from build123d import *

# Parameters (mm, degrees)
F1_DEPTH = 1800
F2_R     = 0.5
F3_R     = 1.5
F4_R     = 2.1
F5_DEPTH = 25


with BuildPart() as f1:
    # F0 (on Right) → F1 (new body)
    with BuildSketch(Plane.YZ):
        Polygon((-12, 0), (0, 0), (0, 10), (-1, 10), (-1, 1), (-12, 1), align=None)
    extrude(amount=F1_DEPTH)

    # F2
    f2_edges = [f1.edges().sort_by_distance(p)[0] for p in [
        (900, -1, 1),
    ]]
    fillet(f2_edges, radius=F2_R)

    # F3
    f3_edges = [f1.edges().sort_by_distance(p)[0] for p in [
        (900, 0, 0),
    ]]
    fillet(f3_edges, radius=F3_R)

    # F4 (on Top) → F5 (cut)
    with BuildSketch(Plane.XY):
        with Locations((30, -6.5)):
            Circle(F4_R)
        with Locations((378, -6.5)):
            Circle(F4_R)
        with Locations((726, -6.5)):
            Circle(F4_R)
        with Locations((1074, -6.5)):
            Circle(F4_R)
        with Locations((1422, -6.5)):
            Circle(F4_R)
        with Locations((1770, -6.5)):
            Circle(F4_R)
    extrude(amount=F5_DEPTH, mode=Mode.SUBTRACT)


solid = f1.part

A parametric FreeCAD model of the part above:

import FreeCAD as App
import Part
import Sketcher
from FreeCAD import Vector


def edges_at(feature, points):
    """Names of the edges that pass closest to the given points."""
    edges = feature.Shape.Edges
    near = lambda p: min(range(len(edges)), key=lambda i: edges[i].distToShape(Part.Vertex(*p))[0])
    return sorted({f"Edge{near(p) + 1}" for p in points})

doc = App.newDocument("Part")
body = doc.addObject("PartDesign::Body", "Body")

sketch1 = body.newObject("Sketcher::SketchObject", "Sketch")
sketch1.AttachmentSupport = (doc.getObject("YZ_Plane"), [""])
sketch1.MapMode = "FlatFace"
sketch1.addGeometry([
    Part.LineSegment(Vector(-12, 0, 0), Vector(0, 0, 0)),
    Part.LineSegment(Vector(0, 0, 0), Vector(0, 10, 0)),
    Part.LineSegment(Vector(0, 10, 0), Vector(-1, 10, 0)),
    Part.LineSegment(Vector(-1, 10, 0), Vector(-1, 1, 0)),
    Part.LineSegment(Vector(-1, 1, 0), Vector(-12, 1, 0)),
    Part.LineSegment(Vector(-12, 1, 0), Vector(-12, 0, 0)),
], False)
sketch1.addConstraint([
    Sketcher.Constraint("Coincident", 0, 2, 1, 1),
    Sketcher.Constraint("Coincident", 1, 2, 2, 1),
    Sketcher.Constraint("Coincident", 2, 2, 3, 1),
    Sketcher.Constraint("Coincident", 3, 2, 4, 1),
    Sketcher.Constraint("Coincident", 4, 2, 5, 1),
    Sketcher.Constraint("Coincident", 5, 2, 0, 1),
    Sketcher.Constraint("Horizontal", 0),
    Sketcher.Constraint("Vertical", 1),
    Sketcher.Constraint("Horizontal", 2),
    Sketcher.Constraint("Vertical", 3),
    Sketcher.Constraint("Horizontal", 4),
    Sketcher.Constraint("Vertical", 5),
    Sketcher.Constraint("Coincident", 0, 2, -1, 1),
    Sketcher.Constraint("Equal", 2, 5),
    Sketcher.Constraint("DistanceX", 0, 1, 0, 2, 12.0),
    Sketcher.Constraint("DistanceX", 2, 2, 2, 1, 1.0),
    Sketcher.Constraint("DistanceY", 1, 1, 1, 2, 10.0),
])
pad1 = body.newObject("PartDesign::Pad", "Pad")
pad1.Profile = sketch1
pad1.Length = 1800
doc.recompute()

fillet = body.newObject("PartDesign::Fillet", "Fillet")
fillet.Base = (pad1, edges_at(pad1, [(900, -1, 1)]))
fillet.Radius = 0.5
doc.recompute()

fillet2 = body.newObject("PartDesign::Fillet", "Fillet001")
fillet2.Base = (fillet, edges_at(fillet, [(900, 0, 0)]))
fillet2.Radius = 1.5

sketch2 = body.newObject("Sketcher::SketchObject", "Sketch001")
sketch2.AttachmentSupport = (doc.getObject("XY_Plane"), [""])
sketch2.MapMode = "FlatFace"
sketch2.addGeometry([
    Part.Circle(Vector(30, -6.5, 0), Vector(0, 0, 1), 2.1),
    Part.Circle(Vector(378, -6.5, 0), Vector(0, 0, 1), 2.1),
    Part.Circle(Vector(726, -6.5, 0), Vector(0, 0, 1), 2.1),
    Part.Circle(Vector(1074, -6.5, 0), Vector(0, 0, 1), 2.1),
    Part.Circle(Vector(1422, -6.5, 0), Vector(0, 0, 1), 2.1),
    Part.Circle(Vector(1770, -6.5, 0), Vector(0, 0, 1), 2.1),
], False)
sketch2.addConstraint([
    Sketcher.Constraint("Equal", 0, 1),
    Sketcher.Constraint("Equal", 1, 2),
    Sketcher.Constraint("Equal", 2, 3),
    Sketcher.Constraint("Equal", 3, 4),
    Sketcher.Constraint("Equal", 4, 5),
    Sketcher.Constraint("Horizontal", 0, 3, 1, 3),
    Sketcher.Constraint("Horizontal", 1, 3, 2, 3),
    Sketcher.Constraint("Horizontal", 2, 3, 3, 3),
    Sketcher.Constraint("Horizontal", 3, 3, 4, 3),
    Sketcher.Constraint("Horizontal", 4, 3, 5, 3),
    Sketcher.Constraint("Diameter", 0, 4.2),
    Sketcher.Constraint("DistanceX", -1, 1, 0, 3, 30.0),
    Sketcher.Constraint("DistanceX", -1, 1, 1, 3, 378.0),
    Sketcher.Constraint("DistanceX", -1, 1, 2, 3, 726.0),
    Sketcher.Constraint("DistanceX", -1, 1, 3, 3, 1074.0),
    Sketcher.Constraint("DistanceX", -1, 1, 4, 3, 1422.0),
    Sketcher.Constraint("DistanceX", -1, 1, 5, 3, 1770.0),
    Sketcher.Constraint("DistanceY", 0, 3, -1, 1, 6.5),
])
pocket1 = body.newObject("PartDesign::Pocket", "Pocket")
pocket1.Profile = sketch2
pocket1.Length = 25
pocket1.Reversed = True

doc.recompute()
